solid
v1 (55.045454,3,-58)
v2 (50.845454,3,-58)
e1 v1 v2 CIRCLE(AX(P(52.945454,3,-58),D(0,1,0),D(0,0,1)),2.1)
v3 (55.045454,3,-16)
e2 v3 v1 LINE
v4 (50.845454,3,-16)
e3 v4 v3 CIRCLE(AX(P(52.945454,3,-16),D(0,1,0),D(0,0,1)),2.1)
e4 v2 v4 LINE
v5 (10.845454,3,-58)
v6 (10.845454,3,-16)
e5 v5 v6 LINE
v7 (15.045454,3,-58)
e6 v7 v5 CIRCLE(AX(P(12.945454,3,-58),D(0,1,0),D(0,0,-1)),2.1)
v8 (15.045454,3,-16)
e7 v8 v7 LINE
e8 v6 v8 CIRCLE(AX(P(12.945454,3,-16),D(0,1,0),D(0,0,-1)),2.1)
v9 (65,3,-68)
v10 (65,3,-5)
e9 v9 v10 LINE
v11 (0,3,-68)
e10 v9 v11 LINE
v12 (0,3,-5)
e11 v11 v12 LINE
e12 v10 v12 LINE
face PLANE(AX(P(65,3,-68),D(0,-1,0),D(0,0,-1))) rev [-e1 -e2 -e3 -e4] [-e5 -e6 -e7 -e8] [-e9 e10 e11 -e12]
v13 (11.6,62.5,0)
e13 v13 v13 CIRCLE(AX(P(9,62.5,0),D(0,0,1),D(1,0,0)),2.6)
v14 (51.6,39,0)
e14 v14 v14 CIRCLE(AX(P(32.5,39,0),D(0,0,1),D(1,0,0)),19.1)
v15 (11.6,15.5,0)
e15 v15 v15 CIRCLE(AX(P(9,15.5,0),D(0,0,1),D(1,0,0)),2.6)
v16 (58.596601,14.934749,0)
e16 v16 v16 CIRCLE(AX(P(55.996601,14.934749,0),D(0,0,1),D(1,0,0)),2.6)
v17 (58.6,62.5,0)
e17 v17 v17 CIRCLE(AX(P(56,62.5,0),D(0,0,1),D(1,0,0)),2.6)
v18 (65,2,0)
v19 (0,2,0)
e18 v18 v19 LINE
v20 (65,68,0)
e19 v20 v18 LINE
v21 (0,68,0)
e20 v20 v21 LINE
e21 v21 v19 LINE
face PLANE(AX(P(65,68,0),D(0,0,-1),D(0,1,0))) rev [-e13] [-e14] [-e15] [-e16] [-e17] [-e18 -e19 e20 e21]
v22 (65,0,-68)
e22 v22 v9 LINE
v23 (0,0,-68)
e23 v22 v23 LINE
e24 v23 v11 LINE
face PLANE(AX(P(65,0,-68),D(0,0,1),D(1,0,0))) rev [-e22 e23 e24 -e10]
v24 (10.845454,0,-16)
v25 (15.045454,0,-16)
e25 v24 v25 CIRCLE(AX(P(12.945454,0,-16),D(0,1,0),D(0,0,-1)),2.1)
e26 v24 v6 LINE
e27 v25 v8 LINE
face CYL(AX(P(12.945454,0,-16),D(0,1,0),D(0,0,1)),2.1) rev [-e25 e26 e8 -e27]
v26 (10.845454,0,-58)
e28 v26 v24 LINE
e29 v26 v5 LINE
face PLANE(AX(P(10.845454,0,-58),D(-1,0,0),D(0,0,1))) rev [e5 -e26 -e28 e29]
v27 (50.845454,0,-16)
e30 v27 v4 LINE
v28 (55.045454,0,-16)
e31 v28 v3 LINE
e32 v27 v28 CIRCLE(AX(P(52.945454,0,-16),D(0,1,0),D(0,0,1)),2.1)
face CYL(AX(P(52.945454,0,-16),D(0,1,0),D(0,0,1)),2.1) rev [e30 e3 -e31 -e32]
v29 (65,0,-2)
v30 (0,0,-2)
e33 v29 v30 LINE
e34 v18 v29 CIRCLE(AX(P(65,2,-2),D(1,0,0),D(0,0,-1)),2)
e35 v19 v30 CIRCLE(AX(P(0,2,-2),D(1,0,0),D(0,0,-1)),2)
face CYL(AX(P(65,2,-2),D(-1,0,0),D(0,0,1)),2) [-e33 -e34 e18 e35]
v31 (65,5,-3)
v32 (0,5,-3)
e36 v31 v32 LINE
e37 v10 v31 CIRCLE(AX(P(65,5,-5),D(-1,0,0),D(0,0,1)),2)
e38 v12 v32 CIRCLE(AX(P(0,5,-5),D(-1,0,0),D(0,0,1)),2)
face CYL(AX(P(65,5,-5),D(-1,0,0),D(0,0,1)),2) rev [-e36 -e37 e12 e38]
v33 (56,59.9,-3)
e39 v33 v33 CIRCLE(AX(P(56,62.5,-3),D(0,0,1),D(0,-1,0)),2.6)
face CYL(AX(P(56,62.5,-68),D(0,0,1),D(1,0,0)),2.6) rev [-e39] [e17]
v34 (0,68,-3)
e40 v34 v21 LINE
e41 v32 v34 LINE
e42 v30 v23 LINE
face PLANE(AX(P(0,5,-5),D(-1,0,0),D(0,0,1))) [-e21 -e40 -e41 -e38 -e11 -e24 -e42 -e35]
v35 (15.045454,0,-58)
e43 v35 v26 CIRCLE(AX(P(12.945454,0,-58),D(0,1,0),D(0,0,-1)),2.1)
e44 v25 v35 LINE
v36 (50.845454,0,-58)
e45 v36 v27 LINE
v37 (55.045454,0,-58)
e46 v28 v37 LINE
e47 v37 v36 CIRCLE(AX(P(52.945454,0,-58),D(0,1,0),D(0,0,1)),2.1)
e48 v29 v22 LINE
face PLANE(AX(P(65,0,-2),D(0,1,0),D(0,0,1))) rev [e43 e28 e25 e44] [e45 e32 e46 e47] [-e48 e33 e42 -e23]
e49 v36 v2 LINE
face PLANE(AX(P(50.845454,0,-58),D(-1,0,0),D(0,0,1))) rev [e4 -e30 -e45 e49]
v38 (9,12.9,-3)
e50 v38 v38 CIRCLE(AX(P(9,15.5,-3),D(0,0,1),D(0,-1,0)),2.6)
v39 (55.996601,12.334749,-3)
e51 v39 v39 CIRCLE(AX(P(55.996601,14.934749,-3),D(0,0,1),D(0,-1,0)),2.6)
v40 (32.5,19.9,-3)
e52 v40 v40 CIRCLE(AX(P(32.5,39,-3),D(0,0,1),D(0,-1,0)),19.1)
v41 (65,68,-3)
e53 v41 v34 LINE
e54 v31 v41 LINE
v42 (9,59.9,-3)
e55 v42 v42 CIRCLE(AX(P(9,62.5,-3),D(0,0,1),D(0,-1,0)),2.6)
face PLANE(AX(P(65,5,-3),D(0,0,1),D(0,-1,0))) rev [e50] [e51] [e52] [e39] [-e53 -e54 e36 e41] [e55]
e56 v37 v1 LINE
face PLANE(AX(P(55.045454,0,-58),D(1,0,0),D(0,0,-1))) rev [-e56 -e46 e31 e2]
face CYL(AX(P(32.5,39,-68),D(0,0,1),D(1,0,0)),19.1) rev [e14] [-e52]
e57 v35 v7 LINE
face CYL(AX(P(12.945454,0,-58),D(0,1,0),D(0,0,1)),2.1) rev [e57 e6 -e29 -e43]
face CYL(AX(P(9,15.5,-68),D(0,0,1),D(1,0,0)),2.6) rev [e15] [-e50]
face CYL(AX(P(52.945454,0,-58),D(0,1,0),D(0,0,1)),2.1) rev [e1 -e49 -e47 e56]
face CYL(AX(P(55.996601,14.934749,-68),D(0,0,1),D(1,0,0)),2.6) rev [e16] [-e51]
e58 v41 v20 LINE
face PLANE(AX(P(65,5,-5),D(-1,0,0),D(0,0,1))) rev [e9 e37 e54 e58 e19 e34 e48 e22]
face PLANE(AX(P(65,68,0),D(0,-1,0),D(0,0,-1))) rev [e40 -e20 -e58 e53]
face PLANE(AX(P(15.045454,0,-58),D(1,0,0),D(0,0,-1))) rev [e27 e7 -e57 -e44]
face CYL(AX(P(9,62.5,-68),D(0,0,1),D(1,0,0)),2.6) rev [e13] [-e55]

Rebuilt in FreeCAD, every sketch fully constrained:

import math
import FreeCAD as App
import Part
import Sketcher
from FreeCAD import Vector

doc = App.newDocument("Part")
params = doc.addObject("Spreadsheet::Sheet", "Params")
for row, (alias, value) in enumerate([
    ("sketch1_radius", "2 mm"),
    ("sketch1_width", "66 mm"),
    ("sketch1_width2", "3 mm"),
    ("pad1_length", "65 mm"),
    ("sketch2_radius", "2.1 mm"),
    ("sketch2_height", "42 mm"),
    ("sketch3_diameter", "38.2 mm"),
    ("sketch3_diameter2", "5.2 mm"),
], start=1):
    params.set(f"A{row}", alias)
    params.set(f"B{row}", "=" + value)
    params.setAlias(f"B{row}", alias)

body = doc.addObject("PartDesign::Body", "Body")

# Sketch on YZ plane
sketch1 = doc.addObject("Sketcher::SketchObject", "Sketch")
body.addObject(sketch1)
sketch1.AttachmentSupport = (doc.YZ_Plane, [""])
sketch1.MapMode = "FlatFace"
sketch1.addGeometry([
    Part.LineSegment(Vector(68, 0, 0), Vector(2, 0, 0)),  # 0
    Part.ArcOfCircle(Part.Circle(Vector(2, -2, 0), Vector(0, 0, 1), 2), math.radians(90), math.radians(180)),  # 1
    Part.LineSegment(Vector(0, -2, 0), Vector(0, -68, 0)),  # 2
    Part.LineSegment(Vector(0, -68, 0), Vector(3, -68, 0)),  # 3
    Part.LineSegment(Vector(3, -68, 0), Vector(3, -5, 0)),  # 4
    Part.ArcOfCircle(Part.Circle(Vector(5, -5, 0), Vector(0, 0, 1), 2), math.radians(90), math.radians(180)),  # 5
    Part.LineSegment(Vector(5, -3, 0), Vector(68, -3, 0)),  # 6
    Part.LineSegment(Vector(68, -3, 0), Vector(68, 0, 0)),  # 7
], False)
sketch1.addConstraint([
    Sketcher.Constraint("Tangent", 0, 2, 1, 1),
    Sketcher.Constraint("Tangent", 1, 2, 2, 1),
    Sketcher.Constraint("Coincident", 2, 2, 3, 1),
    Sketcher.Constraint("Coincident", 3, 2, 4, 1),
    Sketcher.Constraint("Tangent", 4, 2, 5, 2),
    Sketcher.Constraint("Tangent", 5, 1, 6, 1),
    Sketcher.Constraint("Coincident", 6, 2, 7, 1),
    Sketcher.Constraint("Coincident", 7, 2, 0, 1),
    Sketcher.Constraint("Horizontal", 0),
    Sketcher.Constraint("Vertical", 2),
    Sketcher.Constraint("Horizontal", 3),
    Sketcher.Constraint("Vertical", 4),
    Sketcher.Constraint("Horizontal", 6),
    Sketcher.Constraint("Vertical", 7),
    Sketcher.Constraint("Equal", 1, 5),
    Sketcher.Constraint("PointOnObject", 0, 2, -1),
    Sketcher.Constraint("PointOnObject", 1, 2, -2),
    Sketcher.Constraint("Equal", 0, 2),
    Sketcher.Constraint("Equal", 6, 4),
    Sketcher.Constraint("Radius", 1, 2.0),
    Sketcher.Constraint("DistanceX", 0, 2, 0, 1, 66.0),
    Sketcher.Constraint("DistanceX", 3, 1, 3, 2, 3.0),
])
sketch1.setExpression("Constraints[19]", "Params.sketch1_radius")
sketch1.setExpression("Constraints[20]", "Params.sketch1_width")
sketch1.setExpression("Constraints[21]", "Params.sketch1_width2")
pad1 = doc.addObject("PartDesign::Pad", "Pad")
body.addObject(pad1)
pad1.Profile = sketch1
pad1.setExpression("Length", "Params.pad1_length")

# Sketch on XZ plane
sketch2 = doc.addObject("Sketcher::SketchObject", "Sketch001")
body.addObject(sketch2)
sketch2.AttachmentSupport = (doc.XZ_Plane, [""])
sketch2.MapMode = "FlatFace"
sketch2.AttachmentOffset = App.Placement(Vector(0, 0, -3), App.Rotation())
sketch2.addGeometry([
    Part.LineSegment(Vector(55, -16, 0), Vector(55, -58, 0)),  # 0
    Part.ArcOfCircle(Part.Circle(Vector(52.9, -58, 0), Vector(0, 0, 1), 2.1), math.radians(180), math.radians(360)),  # 1
    Part.LineSegment(Vector(50.8, -58, 0), Vector(50.8, -16, 0)),  # 2
    Part.ArcOfCircle(Part.Circle(Vector(52.9, -16, 0), Vector(0, 0, 1), 2.1), math.radians(0), math.radians(180)),  # 3
    Part.LineSegment(Vector(10.8, -58, 0), Vector(10.8, -16, 0)),  # 4
    Part.ArcOfCircle(Part.Circle(Vector(12.9, -16, 0), Vector(0, 0, 1), 2.1), math.radians(0), math.radians(180)),  # 5
    Part.LineSegment(Vector(15, -16, 0), Vector(15, -58, 0)),  # 6
    Part.ArcOfCircle(Part.Circle(Vector(12.9, -58, 0), Vector(0, 0, 1), 2.1), math.radians(180), math.radians(360)),  # 7
], False)
sketch2.addConstraint([
    Sketcher.Constraint("Tangent", 0, 2, 1, 2),
    Sketcher.Constraint("Tangent", 1, 1, 2, 1),
    Sketcher.Constraint("Tangent", 2, 2, 3, 2),
    Sketcher.Constraint("Tangent", 3, 1, 0, 1),
    Sketcher.Constraint("Tangent", 4, 2, 5, 2),
    Sketcher.Constraint("Tangent", 5, 1, 6, 1),
    Sketcher.Constraint("Tangent", 6, 2, 7, 2),
    Sketcher.Constraint("Tangent", 7, 1, 4, 1),
    Sketcher.Constraint("Vertical", 0),
    Sketcher.Constraint("Vertical", 2),
    Sketcher.Constraint("Vertical", 4),
    Sketcher.Constraint("Vertical", 6),
    Sketcher.Constraint("Equal", 3, 5),
    Sketcher.Constraint("Horizontal", 3, 3, 5, 3),
    Sketcher.Constraint("Horizontal", 1, 3, 7, 3),
    Sketcher.Constraint("Radius", 1, 2.1),
    Sketcher.Constraint("DistanceY", 0, 2, 0, 1, 42.0),
    Sketcher.Constraint("DistanceY", 1, 3, -1, 1, 58.0),
    Sketcher.Constraint("DistanceX", 5, 3, 3, 3, 40.0),
    Sketcher.Constraint("DistanceX", -1, 1, 1, 3, 52.945454),
])
sketch2.setExpression("Constraints[15]", "Params.sketch2_radius")
sketch2.setExpression("Constraints[16]", "Params.sketch2_height")
pocket1 = doc.addObject("PartDesign::Pocket", "Pocket")
body.addObject(pocket1)
pocket1.Profile = sketch2
pocket1.Type = "ThroughAll"
pocket1.Reversed = True

# Sketch on XY plane
sketch3 = doc.addObject("Sketcher::SketchObject", "Sketch002")
body.addObject(sketch3)
sketch3.AttachmentSupport = (doc.XY_Plane, [""])
sketch3.MapMode = "FlatFace"
sketch3.addGeometry([
    Part.Circle(Vector(32.5, 39, 0), Vector(0, 0, 1), 19.1),  # 0
    Part.Circle(Vector(9, 62.5, 0), Vector(0, 0, 1), 2.6),  # 1
    Part.Circle(Vector(56, 62.5, 0), Vector(0, 0, 1), 2.6),  # 2
    Part.Circle(Vector(56, 14.9, 0), Vector(0, 0, 1), 2.6),  # 3
    Part.Circle(Vector(9, 15.5, 0), Vector(0, 0, 1), 2.6),  # 4
], False)
sketch3.addConstraint([
    Sketcher.Constraint("Equal", 1, 2),
    Sketcher.Constraint("Equal", 2, 3),
    Sketcher.Constraint("Equal", 3, 4),
    Sketcher.Constraint("Horizontal", 1, 3, 2, 3),
    Sketcher.Constraint("Vertical", 1, 3, 4, 3),
    Sketcher.Constraint("Diameter", 0, 38.2),
    Sketcher.Constraint("Diameter", 1, 5.2),
    Sketcher.Constraint("DistanceY", -1, 1, 0, 3, 39.0),
    Sketcher.Constraint("DistanceX", -1, 1, 1, 3, 9.0),
    Sketcher.Constraint("DistanceX", -1, 1, 2, 3, 56.0),
    Sketcher.Constraint("DistanceY", 4, 3, 1, 3, 47.0),
    Sketcher.Constraint("DistanceX", -1, 1, 0, 3, 32.5),
    Sketcher.Constraint("DistanceY", -1, 1, 1, 3, 62.5),
    Sketcher.Constraint("DistanceX", -1, 1, 3, 3, 55.996601),
    Sketcher.Constraint("DistanceY", -1, 1, 3, 3, 14.934749),
])
sketch3.setExpression("Constraints[5]", "Params.sketch3_diameter")
sketch3.setExpression("Constraints[6]", "Params.sketch3_diameter2")
pocket2 = doc.addObject("PartDesign::Pocket", "Pocket001")
body.addObject(pocket2)
pocket2.Profile = sketch3
pocket2.Type = "ThroughAll"

doc.recompute()
